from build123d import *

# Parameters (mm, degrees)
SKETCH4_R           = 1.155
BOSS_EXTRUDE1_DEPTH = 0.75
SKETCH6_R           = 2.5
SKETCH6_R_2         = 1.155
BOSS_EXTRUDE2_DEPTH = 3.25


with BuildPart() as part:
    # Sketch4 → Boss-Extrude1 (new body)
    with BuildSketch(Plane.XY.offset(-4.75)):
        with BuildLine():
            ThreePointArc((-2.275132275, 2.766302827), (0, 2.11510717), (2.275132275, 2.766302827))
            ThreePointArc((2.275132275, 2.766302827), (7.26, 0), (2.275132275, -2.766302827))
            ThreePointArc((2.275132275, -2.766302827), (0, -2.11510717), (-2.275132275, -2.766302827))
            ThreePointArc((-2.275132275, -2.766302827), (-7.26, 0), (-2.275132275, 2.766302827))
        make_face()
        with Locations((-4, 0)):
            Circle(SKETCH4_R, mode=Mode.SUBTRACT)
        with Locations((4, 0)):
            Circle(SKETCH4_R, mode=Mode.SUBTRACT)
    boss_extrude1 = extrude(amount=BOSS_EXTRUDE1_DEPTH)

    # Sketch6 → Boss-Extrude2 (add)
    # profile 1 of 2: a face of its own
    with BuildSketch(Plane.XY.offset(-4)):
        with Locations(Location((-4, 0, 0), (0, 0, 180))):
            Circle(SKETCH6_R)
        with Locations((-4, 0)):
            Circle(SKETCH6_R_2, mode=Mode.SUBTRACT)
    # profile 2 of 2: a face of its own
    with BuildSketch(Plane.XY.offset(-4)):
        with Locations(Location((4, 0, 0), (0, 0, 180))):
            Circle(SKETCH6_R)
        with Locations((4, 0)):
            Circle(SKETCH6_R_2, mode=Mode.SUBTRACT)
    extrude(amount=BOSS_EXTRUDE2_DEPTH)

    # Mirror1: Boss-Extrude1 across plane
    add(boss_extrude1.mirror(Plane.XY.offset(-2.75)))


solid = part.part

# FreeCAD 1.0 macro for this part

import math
import FreeCAD as App
import Part
import Sketcher
from FreeCAD import Vector

doc = App.newDocument("Part")
body = doc.addObject("PartDesign::Body", "Body")

# Sketch on XY plane
sketch1 = body.newObject("Sketcher::SketchObject", "Sketch")
sketch1.AttachmentSupport = (doc.getObject("XY_Plane"), [""])
sketch1.MapMode = "FlatFace"
sketch1.AttachmentOffset = App.Placement(Vector(0, 0, -4.75), App.Rotation())
sketch1.addGeometry(Part.ArcOfCircle(Part.Circle(Vector(0, 6.4, 0), Vector(0, 0, 1), 4.3), math.radians(-122), math.radians(-58)), False)
sketch1.addGeometry(Part.ArcOfCircle(Part.Circle(Vector(-4, 0, 0), Vector(0, 0, 1), 3.3), math.radians(58), math.radians(302)), False)
sketch1.addGeometry(Part.ArcOfCircle(Part.Circle(Vector(0, -6.4, 0), Vector(0, 0, 1), 4.3), math.radians(58), math.radians(122)), False)
sketch1.addGeometry(Part.ArcOfCircle(Part.Circle(Vector(4, 0, 0), Vector(0, 0, 1), 3.3), math.radians(-122), math.radians(122)), False)
sketch1.addGeometry(Part.Circle(Vector(4, 0, 0), Vector(0, 0, 1), 1.2), False)
sketch1.addGeometry(Part.Circle(Vector(-4, 0, 0), Vector(0, 0, 1), 1.2), False)
sketch1.addConstraint(Sketcher.Constraint("Tangent", 0, 1, 1, 1))
sketch1.addConstraint(Sketcher.Constraint("Tangent", 1, 2, 2, 2))
sketch1.addConstraint(Sketcher.Constraint("Tangent", 2, 1, 3, 1))
sketch1.addConstraint(Sketcher.Constraint("Tangent", 3, 2, 0, 2))
sketch1.addConstraint(Sketcher.Constraint("Coincident", 4, 3, 3, 3))
sketch1.addConstraint(Sketcher.Constraint("Coincident", 5, 3, 1, 3))
sketch1.addConstraint(Sketcher.Constraint("Equal", 0, 2))
sketch1.addConstraint(Sketcher.Constraint("Equal", 1, 3))
sketch1.addConstraint(Sketcher.Constraint("Equal", 4, 5))
sketch1.addConstraint(Sketcher.Constraint("Symmetric", 0, 3, 2, 3, -1, 1))
sketch1.addConstraint(Sketcher.Constraint("PointOnObject", 0, 3, -2))
sketch1.addConstraint(Sketcher.Constraint("Radius", 0, 4.3))
sketch1.addConstraint(Sketcher.Constraint("Diameter", 4, 2.31))
sketch1.addConstraint(Sketcher.Constraint("Radius", 1, 3.26))
sketch1.addConstraint(Sketcher.Constraint("DistanceX", 1, 3, -1, 1, 4.0))
pad1 = body.newObject("PartDesign::Pad", "Pad")
pad1.Profile = sketch1
pad1.Length = 0.75

# Sketch on XY plane
sketch2 = body.newObject("Sketcher::SketchObject", "Sketch001")
sketch2.AttachmentSupport = (doc.getObject("XY_Plane"), [""])
sketch2.MapMode = "FlatFace"
sketch2.AttachmentOffset = App.Placement(Vector(0, 0, -4), App.Rotation())
sketch2.addGeometry(Part.Circle(Vector(-4, 0, 0), Vector(0, 0, 1), 2.5), False)
sketch2.addGeometry(Part.Circle(Vector(-4, 0, 0), Vector(0, 0, 1), 1.2), False)
sketch2.addGeometry(Part.Circle(Vector(4, 0, 0), Vector(0, 0, 1), 2.5), False)
sketch2.addGeometry(Part.Circle(Vector(4, 0, 0), Vector(0, 0, 1), 1.2), False)
sketch2.addConstraint(Sketcher.Constraint("Coincident", 1, 3, 0, 3))
sketch2.addConstraint(Sketcher.Constraint("Coincident", 3, 3, 2, 3))
sketch2.addConstraint(Sketcher.Constraint("Equal", 0, 2))
sketch2.addConstraint(Sketcher.Constraint("Equal", 1, 3))
sketch2.addConstraint(Sketcher.Constraint("Symmetric", 0, 3, 2, 3, -1, 1))
sketch2.addConstraint(Sketcher.Constraint("PointOnObject", 0, 3, -1))
sketch2.addConstraint(Sketcher.Constraint("Diameter", 0, 5.0))
sketch2.addConstraint(Sketcher.Constraint("Diameter", 1, 2.31))
sketch2.addConstraint(Sketcher.Constraint("DistanceX", 0, 3, -1, 1, 4.0))
pad2 = body.newObject("PartDesign::Pad", "Pad001")
pad2.Profile = sketch2
pad2.Length = 3.25
doc.recompute()

datumplane = body.newObject("PartDesign::Plane", "DatumPlane")
datumplane.AttachmentSupport = (doc.getObject("XY_Plane"), [""])
datumplane.MapMode = "FlatFace"
datumplane.AttachmentOffset = App.Placement(Vector(0, 0, -2.75), App.Rotation())
mirrored = body.newObject("PartDesign::Mirrored", "Mirrored")
mirrored.Originals = [pad1]
mirrored.MirrorPlane = (datumplane, [""])
body.Tip = mirrored

doc.recompute()
